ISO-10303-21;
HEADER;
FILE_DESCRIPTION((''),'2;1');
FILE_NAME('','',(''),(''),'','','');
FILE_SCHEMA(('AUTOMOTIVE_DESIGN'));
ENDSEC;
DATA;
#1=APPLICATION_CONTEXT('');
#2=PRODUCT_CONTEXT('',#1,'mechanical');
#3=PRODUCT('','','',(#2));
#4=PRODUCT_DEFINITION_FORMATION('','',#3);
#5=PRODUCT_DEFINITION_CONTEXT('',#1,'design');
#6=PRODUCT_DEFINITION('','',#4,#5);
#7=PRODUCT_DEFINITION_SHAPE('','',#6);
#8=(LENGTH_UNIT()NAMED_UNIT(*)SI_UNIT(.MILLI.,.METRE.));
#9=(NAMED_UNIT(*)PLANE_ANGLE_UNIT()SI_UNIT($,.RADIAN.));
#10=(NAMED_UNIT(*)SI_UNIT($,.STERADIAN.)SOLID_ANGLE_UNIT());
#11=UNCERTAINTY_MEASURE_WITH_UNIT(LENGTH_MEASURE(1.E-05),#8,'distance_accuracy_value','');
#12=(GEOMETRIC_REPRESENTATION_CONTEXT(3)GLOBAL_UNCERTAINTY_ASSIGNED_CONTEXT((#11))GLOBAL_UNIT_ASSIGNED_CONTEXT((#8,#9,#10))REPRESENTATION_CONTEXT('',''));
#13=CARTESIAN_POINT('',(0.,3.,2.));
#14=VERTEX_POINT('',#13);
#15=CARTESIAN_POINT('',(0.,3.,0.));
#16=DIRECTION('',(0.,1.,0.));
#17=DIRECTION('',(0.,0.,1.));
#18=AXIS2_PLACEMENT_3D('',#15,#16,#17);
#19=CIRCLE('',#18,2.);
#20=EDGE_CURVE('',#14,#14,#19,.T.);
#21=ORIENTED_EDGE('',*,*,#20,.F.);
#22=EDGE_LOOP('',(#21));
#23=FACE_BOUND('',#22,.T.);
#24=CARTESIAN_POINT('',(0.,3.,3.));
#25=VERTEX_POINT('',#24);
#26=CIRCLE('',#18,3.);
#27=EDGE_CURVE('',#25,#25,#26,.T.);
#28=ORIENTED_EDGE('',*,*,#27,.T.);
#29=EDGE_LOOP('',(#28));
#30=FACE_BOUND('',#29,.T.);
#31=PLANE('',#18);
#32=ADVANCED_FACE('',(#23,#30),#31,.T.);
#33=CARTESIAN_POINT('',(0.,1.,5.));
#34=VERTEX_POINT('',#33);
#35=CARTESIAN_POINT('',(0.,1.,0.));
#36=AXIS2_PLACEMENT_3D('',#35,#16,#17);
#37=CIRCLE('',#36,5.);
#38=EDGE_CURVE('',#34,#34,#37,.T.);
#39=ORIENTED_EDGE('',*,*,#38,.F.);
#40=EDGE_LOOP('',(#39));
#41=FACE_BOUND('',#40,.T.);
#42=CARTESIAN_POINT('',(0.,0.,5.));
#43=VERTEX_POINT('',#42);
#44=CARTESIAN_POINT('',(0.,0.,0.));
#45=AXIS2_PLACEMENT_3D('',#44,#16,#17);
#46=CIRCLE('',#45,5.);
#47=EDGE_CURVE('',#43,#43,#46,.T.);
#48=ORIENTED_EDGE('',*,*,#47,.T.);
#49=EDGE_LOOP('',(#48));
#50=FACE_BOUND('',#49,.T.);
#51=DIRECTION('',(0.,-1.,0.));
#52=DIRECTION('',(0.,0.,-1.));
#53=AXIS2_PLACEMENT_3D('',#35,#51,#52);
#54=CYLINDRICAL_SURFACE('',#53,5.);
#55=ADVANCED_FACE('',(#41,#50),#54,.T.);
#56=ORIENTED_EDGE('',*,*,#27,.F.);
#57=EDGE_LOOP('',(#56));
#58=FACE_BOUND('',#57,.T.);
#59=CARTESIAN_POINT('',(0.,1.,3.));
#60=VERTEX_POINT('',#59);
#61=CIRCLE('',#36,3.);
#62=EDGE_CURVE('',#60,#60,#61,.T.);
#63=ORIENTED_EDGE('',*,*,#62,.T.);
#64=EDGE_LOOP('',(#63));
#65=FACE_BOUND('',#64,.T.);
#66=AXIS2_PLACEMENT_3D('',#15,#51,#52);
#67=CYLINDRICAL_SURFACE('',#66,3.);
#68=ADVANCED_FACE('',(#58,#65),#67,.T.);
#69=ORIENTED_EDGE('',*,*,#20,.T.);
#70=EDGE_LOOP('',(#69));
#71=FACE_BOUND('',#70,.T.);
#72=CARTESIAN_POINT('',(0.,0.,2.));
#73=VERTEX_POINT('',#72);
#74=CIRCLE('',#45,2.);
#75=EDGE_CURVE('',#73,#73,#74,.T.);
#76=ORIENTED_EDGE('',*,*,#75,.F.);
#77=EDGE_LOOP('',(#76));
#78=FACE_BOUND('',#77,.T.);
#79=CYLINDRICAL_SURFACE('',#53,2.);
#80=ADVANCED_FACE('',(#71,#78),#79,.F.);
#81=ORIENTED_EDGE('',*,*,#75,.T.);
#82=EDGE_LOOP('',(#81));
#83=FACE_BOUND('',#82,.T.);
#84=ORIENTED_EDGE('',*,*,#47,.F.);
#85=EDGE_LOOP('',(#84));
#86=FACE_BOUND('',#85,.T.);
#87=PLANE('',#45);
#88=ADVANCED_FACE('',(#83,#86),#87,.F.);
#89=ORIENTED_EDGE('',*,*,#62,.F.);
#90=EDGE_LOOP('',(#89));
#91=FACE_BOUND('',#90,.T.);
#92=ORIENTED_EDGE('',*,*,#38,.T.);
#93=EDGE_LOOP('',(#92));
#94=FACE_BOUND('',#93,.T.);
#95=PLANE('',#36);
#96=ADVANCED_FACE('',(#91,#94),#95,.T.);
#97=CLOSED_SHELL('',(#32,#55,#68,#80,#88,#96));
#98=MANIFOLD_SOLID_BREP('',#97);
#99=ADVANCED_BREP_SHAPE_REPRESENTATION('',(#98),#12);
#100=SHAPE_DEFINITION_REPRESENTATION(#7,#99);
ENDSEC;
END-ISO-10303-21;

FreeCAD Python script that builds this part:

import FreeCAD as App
import Part
import Sketcher

V = App.Vector

doc = App.newDocument("Part")
params = doc.addObject("Spreadsheet::Sheet", "Params")
for row, (alias, value) in enumerate([
    ("sketch1_diameter", "10 mm"),
    ("sketch1_diameter2", "4 mm"),
    ("pad1_length", "1 mm"),
    ("sketch2_diameter", "6 mm"),
    ("sketch2_diameter2", "4 mm"),
    ("pad2_length", "2 mm"),
], start=1):
    params.set(f"A{row}", alias)
    params.set(f"B{row}", "=" + value)
    params.setAlias(f"B{row}", alias)

body = doc.addObject("PartDesign::Body", "Body")

# Sketch on XZ plane
sketch1 = body.newObject("Sketcher::SketchObject", "Sketch")
sketch1.AttachmentSupport = (doc.getObject("XZ_Plane"), [""])
sketch1.MapMode = "FlatFace"
sketch1.addGeometry([
    Part.Circle(V(0, 0, 0), V(0, 0, 1), 5),
    Part.Circle(V(0, 0, 0), V(0, 0, 1), 2),
], False)
sketch1.addConstraint([
    Sketcher.Constraint("Coincident", 0, 3, -1, 1),
    Sketcher.Constraint("Coincident", 1, 3, -1, 1),
    Sketcher.Constraint("Diameter", 0, 10.0),
    Sketcher.Constraint("Diameter", 1, 4.0),
])
sketch1.setExpression("Constraints[2]", "Params.sketch1_diameter")
sketch1.setExpression("Constraints[3]", "Params.sketch1_diameter2")
pad1 = body.newObject("PartDesign::Pad", "Pad")
pad1.Profile = sketch1
pad1.setExpression("Length", "Params.pad1_length")
pad1.Reversed = True

# Sketch on XZ plane
sketch2 = body.newObject("Sketcher::SketchObject", "Sketch001")
sketch2.AttachmentSupport = (doc.getObject("XZ_Plane"), [""])
sketch2.MapMode = "FlatFace"
sketch2.AttachmentOffset = App.Placement(V(0, 0, -1), App.Rotation())
sketch2.addGeometry([
    Part.Circle(V(0, 0, 0), V(0, 0, 1), 3),
    Part.Circle(V(0, 0, 0), V(0, 0, 1), 2),
], False)
sketch2.addConstraint([
    Sketcher.Constraint("Coincident", 0, 3, -1, 1),
    Sketcher.Constraint("Coincident", 1, 3, -1, 1),
    Sketcher.Constraint("Diameter", 0, 6.0),
    Sketcher.Constraint("Diameter", 1, 4.0),
])
sketch2.setExpression("Constraints[2]", "Params.sketch2_diameter")
sketch2.setExpression("Constraints[3]", "Params.sketch2_diameter2")
pad2 = body.newObject("PartDesign::Pad", "Pad001")
pad2.Profile = sketch2
pad2.setExpression("Length", "Params.pad2_length")
pad2.Reversed = True

doc.recompute()
